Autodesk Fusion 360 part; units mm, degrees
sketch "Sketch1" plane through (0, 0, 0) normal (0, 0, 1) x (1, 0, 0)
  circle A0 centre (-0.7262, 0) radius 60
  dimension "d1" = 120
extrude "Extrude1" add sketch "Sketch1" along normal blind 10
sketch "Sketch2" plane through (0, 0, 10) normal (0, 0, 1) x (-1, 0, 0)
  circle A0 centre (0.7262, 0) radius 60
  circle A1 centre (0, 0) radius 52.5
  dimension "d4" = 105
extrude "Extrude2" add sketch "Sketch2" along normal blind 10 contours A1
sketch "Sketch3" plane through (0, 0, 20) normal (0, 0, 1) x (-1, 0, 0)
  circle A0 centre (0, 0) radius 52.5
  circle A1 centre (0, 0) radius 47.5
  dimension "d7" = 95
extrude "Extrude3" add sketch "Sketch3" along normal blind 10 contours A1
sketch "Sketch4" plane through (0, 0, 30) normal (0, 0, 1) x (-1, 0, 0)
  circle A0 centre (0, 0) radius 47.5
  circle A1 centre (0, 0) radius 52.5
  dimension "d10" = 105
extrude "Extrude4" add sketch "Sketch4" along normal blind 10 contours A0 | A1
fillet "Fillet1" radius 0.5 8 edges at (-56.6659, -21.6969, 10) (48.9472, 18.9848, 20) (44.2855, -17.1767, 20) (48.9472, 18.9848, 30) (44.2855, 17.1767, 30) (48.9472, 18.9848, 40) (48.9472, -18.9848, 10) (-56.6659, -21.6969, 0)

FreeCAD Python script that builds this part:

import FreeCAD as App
import Part
import Sketcher
Q = App.Units.Quantity


def edges_at(feature, points):
    """Names of the edges that pass closest to the given points."""
    edges = feature.Shape.Edges
    near = lambda p: min(range(len(edges)), key=lambda i: edges[i].distToShape(Part.Vertex(*p))[0])
    return sorted({f"Edge{near(p) + 1}" for p in points})

doc = App.newDocument("Part")
body = doc.addObject("PartDesign::Body", "Body")

sketch1 = doc.addObject("Sketcher::SketchObject", "Sketch")
body.addObject(sketch1)
sketch1.AttachmentSupport = (doc.XY_Plane, [""])
sketch1.MapMode = "FlatFace"
sketch1.addGeometry(Part.Circle(App.Vector(-1, 0, 0), App.Vector(0, 0, 1), 60), False)
sketch1.addConstraint([
    Sketcher.Constraint("PointOnObject", 0, 3, -1),
    Sketcher.Constraint("Diameter", 0, Q("120 mm")),
    Sketcher.Constraint("DistanceX", 0, 3, -1, 1, Q("0.7262 mm")),
])
pad1 = doc.addObject("PartDesign::Pad", "Pad")
body.addObject(pad1)
pad1.Profile = sketch1
pad1.Length = 10

sketch2 = doc.addObject("Sketcher::SketchObject", "Sketch001")
body.addObject(sketch2)
sketch2.AttachmentSupport = (doc.XY_Plane, [""])
sketch2.MapMode = "FlatFace"
sketch2.AttachmentOffset = App.Placement(App.Vector(0, 0, 10), App.Rotation())
sketch2.addGeometry(Part.Circle(App.Vector(0, 0, 0), App.Vector(0, 0, 1), 52), False)
sketch2.addConstraint([
    Sketcher.Constraint("Coincident", 0, 3, -1, 1),
    Sketcher.Constraint("Diameter", 0, Q("105 mm")),
])
pad2 = doc.addObject("PartDesign::Pad", "Pad001")
body.addObject(pad2)
pad2.Profile = sketch2
pad2.Length = 10

sketch3 = doc.addObject("Sketcher::SketchObject", "Sketch002")
body.addObject(sketch3)
sketch3.AttachmentSupport = (doc.XY_Plane, [""])
sketch3.MapMode = "FlatFace"
sketch3.AttachmentOffset = App.Placement(App.Vector(0, 0, 20), App.Rotation())
sketch3.addGeometry(Part.Circle(App.Vector(0, 0, 0), App.Vector(0, 0, 1), 48), False)
sketch3.addConstraint([
    Sketcher.Constraint("Coincident", 0, 3, -1, 1),
    Sketcher.Constraint("Diameter", 0, Q("95 mm")),
])
pad3 = doc.addObject("PartDesign::Pad", "Pad002")
body.addObject(pad3)
pad3.Profile = sketch3
pad3.Length = 10

sketch4 = doc.addObject("Sketcher::SketchObject", "Sketch003")
body.addObject(sketch4)
sketch4.AttachmentSupport = (doc.XY_Plane, [""])
sketch4.MapMode = "FlatFace"
sketch4.AttachmentOffset = App.Placement(App.Vector(0, 0, 30), App.Rotation())
sketch4.addGeometry(Part.Circle(App.Vector(0, 0, 0), App.Vector(0, 0, 1), 52), False)
sketch4.addConstraint([
    Sketcher.Constraint("Coincident", 0, 3, -1, 1),
    Sketcher.Constraint("Diameter", 0, Q("105 mm")),
])
pad4 = doc.addObject("PartDesign::Pad", "Pad003")
body.addObject(pad4)
pad4.Profile = sketch4
pad4.Length = 10
doc.recompute()

fillet = doc.addObject("PartDesign::Fillet", "Fillet")
body.addObject(fillet)
fillet.Base = (pad4, edges_at(pad4, [
    (-56.666, -21.697, 10),
    (48.947, 18.985, 20),
    (44.285, -17.177, 20),
    (48.947, 18.985, 30),
    (44.285, 17.177, 30),
    (48.947, 18.985, 40),
    (48.947, -18.985, 10),
    (-56.666, -21.697, 0),
]))
fillet.Radius = 0.5

doc.recompute()
